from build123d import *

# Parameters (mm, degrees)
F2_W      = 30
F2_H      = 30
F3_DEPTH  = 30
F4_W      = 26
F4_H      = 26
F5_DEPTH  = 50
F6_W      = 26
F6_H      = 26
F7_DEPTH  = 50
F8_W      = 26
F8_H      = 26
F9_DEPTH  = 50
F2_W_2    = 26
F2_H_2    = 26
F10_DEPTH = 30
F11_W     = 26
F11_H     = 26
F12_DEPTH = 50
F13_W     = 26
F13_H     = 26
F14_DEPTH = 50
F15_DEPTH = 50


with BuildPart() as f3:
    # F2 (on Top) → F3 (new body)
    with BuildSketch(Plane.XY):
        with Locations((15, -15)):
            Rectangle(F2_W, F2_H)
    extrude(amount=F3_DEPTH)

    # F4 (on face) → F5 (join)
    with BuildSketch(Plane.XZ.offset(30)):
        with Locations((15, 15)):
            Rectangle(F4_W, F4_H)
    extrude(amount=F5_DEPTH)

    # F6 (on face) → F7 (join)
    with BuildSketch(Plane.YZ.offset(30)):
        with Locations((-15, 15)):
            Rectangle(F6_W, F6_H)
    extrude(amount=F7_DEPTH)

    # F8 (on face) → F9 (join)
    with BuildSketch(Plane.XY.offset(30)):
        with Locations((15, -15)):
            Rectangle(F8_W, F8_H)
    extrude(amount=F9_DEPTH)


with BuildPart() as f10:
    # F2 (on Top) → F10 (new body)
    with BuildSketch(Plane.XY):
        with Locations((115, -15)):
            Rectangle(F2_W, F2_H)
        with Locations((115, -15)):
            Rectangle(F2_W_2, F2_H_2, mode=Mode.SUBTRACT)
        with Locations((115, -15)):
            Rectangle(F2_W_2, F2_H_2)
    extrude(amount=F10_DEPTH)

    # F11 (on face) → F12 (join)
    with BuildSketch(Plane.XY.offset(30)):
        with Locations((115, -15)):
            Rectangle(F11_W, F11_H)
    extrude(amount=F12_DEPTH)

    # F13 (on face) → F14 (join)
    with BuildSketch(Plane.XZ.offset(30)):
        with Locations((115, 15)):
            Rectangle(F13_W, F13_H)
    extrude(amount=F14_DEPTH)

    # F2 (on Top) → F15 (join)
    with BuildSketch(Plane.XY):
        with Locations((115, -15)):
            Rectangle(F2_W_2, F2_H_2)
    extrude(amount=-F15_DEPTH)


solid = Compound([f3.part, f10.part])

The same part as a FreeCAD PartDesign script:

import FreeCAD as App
import Part
import Sketcher

doc = App.newDocument("Part")
body = doc.addObject("PartDesign::Body", "Body")

# Sketch on XY plane
sketch1 = body.newObject("Sketcher::SketchObject", "Sketch")
sketch1.AttachmentSupport = (doc.getObject("XY_Plane"), [""])
sketch1.MapMode = "FlatFace"
sketch1.addGeometry([
    Part.LineSegment(App.Vector(0, 0, 0), App.Vector(0, -30, 0)),
    Part.LineSegment(App.Vector(0, -30, 0), App.Vector(30, -30, 0)),
    Part.LineSegment(App.Vector(30, -30, 0), App.Vector(30, 0, 0)),
    Part.LineSegment(App.Vector(30, 0, 0), App.Vector(0, 0, 0)),
], False)
sketch1.addConstraint([
    Sketcher.Constraint("Coincident", 0, 2, 1, 1),
    Sketcher.Constraint("Coincident", 1, 2, 2, 1),
    Sketcher.Constraint("Coincident", 2, 2, 3, 1),
    Sketcher.Constraint("Coincident", 3, 2, 0, 1),
    Sketcher.Constraint("Vertical", 0),
    Sketcher.Constraint("Horizontal", 1),
    Sketcher.Constraint("Vertical", 2),
    Sketcher.Constraint("Horizontal", 3),
    Sketcher.Constraint("Coincident", 3, 2, -1, 1),
    Sketcher.Constraint("Equal", 3, 0),
    Sketcher.Constraint("DistanceX", 1, 1, 1, 2, 30.0),
])
pad1 = body.newObject("PartDesign::Pad", "Pad")
pad1.Profile = sketch1
pad1.Length = 30

# Sketch on XZ plane
sketch2 = body.newObject("Sketcher::SketchObject", "Sketch001")
sketch2.AttachmentSupport = (doc.getObject("XZ_Plane"), [""])
sketch2.MapMode = "FlatFace"
sketch2.AttachmentOffset = App.Placement(App.Vector(0, 0, 30), App.Rotation())
sketch2.addGeometry([
    Part.LineSegment(App.Vector(2, 28, 0), App.Vector(2, 2, 0)),
    Part.LineSegment(App.Vector(2, 2, 0), App.Vector(28, 2, 0)),
    Part.LineSegment(App.Vector(28, 2, 0), App.Vector(28, 28, 0)),
    Part.LineSegment(App.Vector(28, 28, 0), App.Vector(2, 28, 0)),
], False)
sketch2.addConstraint([
    Sketcher.Constraint("Coincident", 0, 2, 1, 1),
    Sketcher.Constraint("Coincident", 1, 2, 2, 1),
    Sketcher.Constraint("Coincident", 2, 2, 3, 1),
    Sketcher.Constraint("Coincident", 3, 2, 0, 1),
    Sketcher.Constraint("Vertical", 0),
    Sketcher.Constraint("Horizontal", 1),
    Sketcher.Constraint("Vertical", 2),
    Sketcher.Constraint("Horizontal", 3),
    Sketcher.Constraint("Equal", 3, 0),
    Sketcher.Constraint("DistanceX", 1, 1, 1, 2, 26.0),
    Sketcher.Constraint("DistanceX", -1, 1, 0, 2, 2.0),
    Sketcher.Constraint("DistanceY", -1, 1, 0, 2, 2.0),
])
pad2 = body.newObject("PartDesign::Pad", "Pad001")
pad2.Profile = sketch2
pad2.Length = 50

# Sketch on YZ plane
sketch3 = body.newObject("Sketcher::SketchObject", "Sketch002")
sketch3.AttachmentSupport = (doc.getObject("YZ_Plane"), [""])
sketch3.MapMode = "FlatFace"
sketch3.AttachmentOffset = App.Placement(App.Vector(0, 0, 30), App.Rotation())
sketch3.addGeometry([
    Part.LineSegment(App.Vector(-28, 28, 0), App.Vector(-28, 2, 0)),
    Part.LineSegment(App.Vector(-28, 2, 0), App.Vector(-2, 2, 0)),
    Part.LineSegment(App.Vector(-2, 2, 0), App.Vector(-2, 28, 0)),
    Part.LineSegment(App.Vector(-2, 28, 0), App.Vector(-28, 28, 0)),
], False)
sketch3.addConstraint([
    Sketcher.Constraint("Coincident", 0, 2, 1, 1),
    Sketcher.Constraint("Coincident", 1, 2, 2, 1),
    Sketcher.Constraint("Coincident", 2, 2, 3, 1),
    Sketcher.Constraint("Coincident", 3, 2, 0, 1),
    Sketcher.Constraint("Vertical", 0),
    Sketcher.Constraint("Horizontal", 1),
    Sketcher.Constraint("Vertical", 2),
    Sketcher.Constraint("Horizontal", 3),
    Sketcher.Constraint("Equal", 3, 0),
    Sketcher.Constraint("DistanceX", 1, 1, 1, 2, 26.0),
    Sketcher.Constraint("DistanceX", 0, 2, -1, 1, 28.0),
    Sketcher.Constraint("DistanceY", -1, 1, 0, 2, 2.0),
])
pad3 = body.newObject("PartDesign::Pad", "Pad002")
pad3.Profile = sketch3
pad3.Length = 50

# Sketch on XY plane
sketch4 = body.newObject("Sketcher::SketchObject", "Sketch003")
sketch4.AttachmentSupport = (doc.getObject("XY_Plane"), [""])
sketch4.MapMode = "FlatFace"
sketch4.AttachmentOffset = App.Placement(App.Vector(0, 0, 30), App.Rotation())
sketch4.addGeometry([
    Part.LineSegment(App.Vector(2, -2, 0), App.Vector(2, -28, 0)),
    Part.LineSegment(App.Vector(2, -28, 0), App.Vector(28, -28, 0)),
    Part.LineSegment(App.Vector(28, -28, 0), App.Vector(28, -2, 0)),
    Part.LineSegment(App.Vector(28, -2, 0), App.Vector(2, -2, 0)),
], False)
sketch4.addConstraint([
    Sketcher.Constraint("Coincident", 0, 2, 1, 1),
    Sketcher.Constraint("Coincident", 1, 2, 2, 1),
    Sketcher.Constraint("Coincident", 2, 2, 3, 1),
    Sketcher.Constraint("Coincident", 3, 2, 0, 1),
    Sketcher.Constraint("Vertical", 0),
    Sketcher.Constraint("Horizontal", 1),
    Sketcher.Constraint("Vertical", 2),
    Sketcher.Constraint("Horizontal", 3),
    Sketcher.Constraint("Equal", 3, 0),
    Sketcher.Constraint("DistanceX", 1, 1, 1, 2, 26.0),
    Sketcher.Constraint("DistanceX", -1, 1, 0, 2, 2.0),
    Sketcher.Constraint("DistanceY", 0, 2, -1, 1, 28.0),
])
pad4 = body.newObject("PartDesign::Pad", "Pad003")
pad4.Profile = sketch4
pad4.Length = 50
body2 = doc.addObject("PartDesign::Body", "Body001")

# Sketch on XY plane
sketch5 = body2.newObject("Sketcher::SketchObject", "Sketch004")
sketch5.AttachmentSupport = (doc.getObject("XY_Plane001"), [""])
sketch5.MapMode = "FlatFace"
sketch5.addGeometry([
    Part.LineSegment(App.Vector(100, 0, 0), App.Vector(100, -30, 0)),
    Part.LineSegment(App.Vector(100, -30, 0), App.Vector(130, -30, 0)),
    Part.LineSegment(App.Vector(130, -30, 0), App.Vector(130, 0, 0)),
    Part.LineSegment(App.Vector(130, 0, 0), App.Vector(100, 0, 0)),
], False)
sketch5.addConstraint([
    Sketcher.Constraint("Coincident", 0, 2, 1, 1),
    Sketcher.Constraint("Coincident", 1, 2, 2, 1),
    Sketcher.Constraint("Coincident", 2, 2, 3, 1),
    Sketcher.Constraint("Coincident", 3, 2, 0, 1),
    Sketcher.Constraint("Vertical", 0),
    Sketcher.Constraint("Horizontal", 1),
    Sketcher.Constraint("Vertical", 2),
    Sketcher.Constraint("Horizontal", 3),
    Sketcher.Constraint("PointOnObject", 2, 2, -1),
    Sketcher.Constraint("Equal", 3, 0),
    Sketcher.Constraint("DistanceX", 1, 1, 1, 2, 30.0),
    Sketcher.Constraint("DistanceX", -1, 1, 0, 2, 100.0),
])
pad5 = body2.newObject("PartDesign::Pad", "Pad004")
pad5.Profile = sketch5
pad5.Length = 30

# Sketch on XY plane
sketch6 = body2.newObject("Sketcher::SketchObject", "Sketch005")
sketch6.AttachmentSupport = (doc.getObject("XY_Plane001"), [""])
sketch6.MapMode = "FlatFace"
sketch6.AttachmentOffset = App.Placement(App.Vector(0, 0, 30), App.Rotation())
sketch6.addGeometry([
    Part.LineSegment(App.Vector(102, -2, 0), App.Vector(102, -28, 0)),
    Part.LineSegment(App.Vector(102, -28, 0), App.Vector(128, -28, 0)),
    Part.LineSegment(App.Vector(128, -28, 0), App.Vector(128, -2, 0)),
    Part.LineSegment(App.Vector(128, -2, 0), App.Vector(102, -2, 0)),
], False)
sketch6.addConstraint([
    Sketcher.Constraint("Coincident", 0, 2, 1, 1),
    Sketcher.Constraint("Coincident", 1, 2, 2, 1),
    Sketcher.Constraint("Coincident", 2, 2, 3, 1),
    Sketcher.Constraint("Coincident", 3, 2, 0, 1),
    Sketcher.Constraint("Vertical", 0),
    Sketcher.Constraint("Horizontal", 1),
    Sketcher.Constraint("Vertical", 2),
    Sketcher.Constraint("Horizontal", 3),
    Sketcher.Constraint("Equal", 3, 0),
    Sketcher.Constraint("DistanceX", 1, 1, 1, 2, 26.0),
    Sketcher.Constraint("DistanceX", -1, 1, 0, 2, 102.0),
    Sketcher.Constraint("DistanceY", 0, 2, -1, 1, 28.0),
])
pad6 = body2.newObject("PartDesign::Pad", "Pad005")
pad6.Profile = sketch6
pad6.Length = 50

# Sketch on XZ plane
sketch7 = body2.newObject("Sketcher::SketchObject", "Sketch006")
sketch7.AttachmentSupport = (doc.getObject("XZ_Plane001"), [""])
sketch7.MapMode = "FlatFace"
sketch7.AttachmentOffset = App.Placement(App.Vector(0, 0, 30), App.Rotation())
sketch7.addGeometry([
    Part.LineSegment(App.Vector(102, 28, 0), App.Vector(102, 2, 0)),
    Part.LineSegment(App.Vector(102, 2, 0), App.Vector(128, 2, 0)),
    Part.LineSegment(App.Vector(128, 2, 0), App.Vector(128, 28, 0)),
    Part.LineSegment(App.Vector(128, 28, 0), App.Vector(102, 28, 0)),
], False)
sketch7.addConstraint([
    Sketcher.Constraint("Coincident", 0, 2, 1, 1),
    Sketcher.Constraint("Coincident", 1, 2, 2, 1),
    Sketcher.Constraint("Coincident", 2, 2, 3, 1),
    Sketcher.Constraint("Coincident", 3, 2, 0, 1),
    Sketcher.Constraint("Vertical", 0),
    Sketcher.Constraint("Horizontal", 1),
    Sketcher.Constraint("Vertical", 2),
    Sketcher.Constraint("Horizontal", 3),
    Sketcher.Constraint("Equal", 3, 0),
    Sketcher.Constraint("DistanceX", 1, 1, 1, 2, 26.0),
    Sketcher.Constraint("DistanceX", -1, 1, 0, 2, 102.0),
    Sketcher.Constraint("DistanceY", -1, 1, 0, 2, 2.0),
])
pad7 = body2.newObject("PartDesign::Pad", "Pad006")
pad7.Profile = sketch7
pad7.Length = 50

# Sketch on XY plane
sketch8 = body2.newObject("Sketcher::SketchObject", "Sketch007")
sketch8.AttachmentSupport = (doc.getObject("XY_Plane001"), [""])
sketch8.MapMode = "FlatFace"
sketch8.addGeometry([
    Part.LineSegment(App.Vector(102, -2, 0), App.Vector(102, -28, 0)),
    Part.LineSegment(App.Vector(102, -28, 0), App.Vector(128, -28, 0)),
    Part.LineSegment(App.Vector(128, -28, 0), App.Vector(128, -2, 0)),
    Part.LineSegment(App.Vector(128, -2, 0), App.Vector(102, -2, 0)),
], False)
sketch8.addConstraint([
    Sketcher.Constraint("Coincident", 0, 2, 1, 1),
    Sketcher.Constraint("Coincident", 1, 2, 2, 1),
    Sketcher.Constraint("Coincident", 2, 2, 3, 1),
    Sketcher.Constraint("Coincident", 3, 2, 0, 1),
    Sketcher.Constraint("Vertical", 0),
    Sketcher.Constraint("Horizontal", 1),
    Sketcher.Constraint("Vertical", 2),
    Sketcher.Constraint("Horizontal", 3),
    Sketcher.Constraint("Equal", 3, 0),
    Sketcher.Constraint("DistanceX", 1, 1, 1, 2, 26.0),
    Sketcher.Constraint("DistanceX", -1, 1, 0, 2, 102.0),
    Sketcher.Constraint("DistanceY", 0, 2, -1, 1, 28.0),
])
pad8 = body2.newObject("PartDesign::Pad", "Pad007")
pad8.Profile = sketch8
pad8.Length = 50
pad8.Reversed = True

doc.recompute()
